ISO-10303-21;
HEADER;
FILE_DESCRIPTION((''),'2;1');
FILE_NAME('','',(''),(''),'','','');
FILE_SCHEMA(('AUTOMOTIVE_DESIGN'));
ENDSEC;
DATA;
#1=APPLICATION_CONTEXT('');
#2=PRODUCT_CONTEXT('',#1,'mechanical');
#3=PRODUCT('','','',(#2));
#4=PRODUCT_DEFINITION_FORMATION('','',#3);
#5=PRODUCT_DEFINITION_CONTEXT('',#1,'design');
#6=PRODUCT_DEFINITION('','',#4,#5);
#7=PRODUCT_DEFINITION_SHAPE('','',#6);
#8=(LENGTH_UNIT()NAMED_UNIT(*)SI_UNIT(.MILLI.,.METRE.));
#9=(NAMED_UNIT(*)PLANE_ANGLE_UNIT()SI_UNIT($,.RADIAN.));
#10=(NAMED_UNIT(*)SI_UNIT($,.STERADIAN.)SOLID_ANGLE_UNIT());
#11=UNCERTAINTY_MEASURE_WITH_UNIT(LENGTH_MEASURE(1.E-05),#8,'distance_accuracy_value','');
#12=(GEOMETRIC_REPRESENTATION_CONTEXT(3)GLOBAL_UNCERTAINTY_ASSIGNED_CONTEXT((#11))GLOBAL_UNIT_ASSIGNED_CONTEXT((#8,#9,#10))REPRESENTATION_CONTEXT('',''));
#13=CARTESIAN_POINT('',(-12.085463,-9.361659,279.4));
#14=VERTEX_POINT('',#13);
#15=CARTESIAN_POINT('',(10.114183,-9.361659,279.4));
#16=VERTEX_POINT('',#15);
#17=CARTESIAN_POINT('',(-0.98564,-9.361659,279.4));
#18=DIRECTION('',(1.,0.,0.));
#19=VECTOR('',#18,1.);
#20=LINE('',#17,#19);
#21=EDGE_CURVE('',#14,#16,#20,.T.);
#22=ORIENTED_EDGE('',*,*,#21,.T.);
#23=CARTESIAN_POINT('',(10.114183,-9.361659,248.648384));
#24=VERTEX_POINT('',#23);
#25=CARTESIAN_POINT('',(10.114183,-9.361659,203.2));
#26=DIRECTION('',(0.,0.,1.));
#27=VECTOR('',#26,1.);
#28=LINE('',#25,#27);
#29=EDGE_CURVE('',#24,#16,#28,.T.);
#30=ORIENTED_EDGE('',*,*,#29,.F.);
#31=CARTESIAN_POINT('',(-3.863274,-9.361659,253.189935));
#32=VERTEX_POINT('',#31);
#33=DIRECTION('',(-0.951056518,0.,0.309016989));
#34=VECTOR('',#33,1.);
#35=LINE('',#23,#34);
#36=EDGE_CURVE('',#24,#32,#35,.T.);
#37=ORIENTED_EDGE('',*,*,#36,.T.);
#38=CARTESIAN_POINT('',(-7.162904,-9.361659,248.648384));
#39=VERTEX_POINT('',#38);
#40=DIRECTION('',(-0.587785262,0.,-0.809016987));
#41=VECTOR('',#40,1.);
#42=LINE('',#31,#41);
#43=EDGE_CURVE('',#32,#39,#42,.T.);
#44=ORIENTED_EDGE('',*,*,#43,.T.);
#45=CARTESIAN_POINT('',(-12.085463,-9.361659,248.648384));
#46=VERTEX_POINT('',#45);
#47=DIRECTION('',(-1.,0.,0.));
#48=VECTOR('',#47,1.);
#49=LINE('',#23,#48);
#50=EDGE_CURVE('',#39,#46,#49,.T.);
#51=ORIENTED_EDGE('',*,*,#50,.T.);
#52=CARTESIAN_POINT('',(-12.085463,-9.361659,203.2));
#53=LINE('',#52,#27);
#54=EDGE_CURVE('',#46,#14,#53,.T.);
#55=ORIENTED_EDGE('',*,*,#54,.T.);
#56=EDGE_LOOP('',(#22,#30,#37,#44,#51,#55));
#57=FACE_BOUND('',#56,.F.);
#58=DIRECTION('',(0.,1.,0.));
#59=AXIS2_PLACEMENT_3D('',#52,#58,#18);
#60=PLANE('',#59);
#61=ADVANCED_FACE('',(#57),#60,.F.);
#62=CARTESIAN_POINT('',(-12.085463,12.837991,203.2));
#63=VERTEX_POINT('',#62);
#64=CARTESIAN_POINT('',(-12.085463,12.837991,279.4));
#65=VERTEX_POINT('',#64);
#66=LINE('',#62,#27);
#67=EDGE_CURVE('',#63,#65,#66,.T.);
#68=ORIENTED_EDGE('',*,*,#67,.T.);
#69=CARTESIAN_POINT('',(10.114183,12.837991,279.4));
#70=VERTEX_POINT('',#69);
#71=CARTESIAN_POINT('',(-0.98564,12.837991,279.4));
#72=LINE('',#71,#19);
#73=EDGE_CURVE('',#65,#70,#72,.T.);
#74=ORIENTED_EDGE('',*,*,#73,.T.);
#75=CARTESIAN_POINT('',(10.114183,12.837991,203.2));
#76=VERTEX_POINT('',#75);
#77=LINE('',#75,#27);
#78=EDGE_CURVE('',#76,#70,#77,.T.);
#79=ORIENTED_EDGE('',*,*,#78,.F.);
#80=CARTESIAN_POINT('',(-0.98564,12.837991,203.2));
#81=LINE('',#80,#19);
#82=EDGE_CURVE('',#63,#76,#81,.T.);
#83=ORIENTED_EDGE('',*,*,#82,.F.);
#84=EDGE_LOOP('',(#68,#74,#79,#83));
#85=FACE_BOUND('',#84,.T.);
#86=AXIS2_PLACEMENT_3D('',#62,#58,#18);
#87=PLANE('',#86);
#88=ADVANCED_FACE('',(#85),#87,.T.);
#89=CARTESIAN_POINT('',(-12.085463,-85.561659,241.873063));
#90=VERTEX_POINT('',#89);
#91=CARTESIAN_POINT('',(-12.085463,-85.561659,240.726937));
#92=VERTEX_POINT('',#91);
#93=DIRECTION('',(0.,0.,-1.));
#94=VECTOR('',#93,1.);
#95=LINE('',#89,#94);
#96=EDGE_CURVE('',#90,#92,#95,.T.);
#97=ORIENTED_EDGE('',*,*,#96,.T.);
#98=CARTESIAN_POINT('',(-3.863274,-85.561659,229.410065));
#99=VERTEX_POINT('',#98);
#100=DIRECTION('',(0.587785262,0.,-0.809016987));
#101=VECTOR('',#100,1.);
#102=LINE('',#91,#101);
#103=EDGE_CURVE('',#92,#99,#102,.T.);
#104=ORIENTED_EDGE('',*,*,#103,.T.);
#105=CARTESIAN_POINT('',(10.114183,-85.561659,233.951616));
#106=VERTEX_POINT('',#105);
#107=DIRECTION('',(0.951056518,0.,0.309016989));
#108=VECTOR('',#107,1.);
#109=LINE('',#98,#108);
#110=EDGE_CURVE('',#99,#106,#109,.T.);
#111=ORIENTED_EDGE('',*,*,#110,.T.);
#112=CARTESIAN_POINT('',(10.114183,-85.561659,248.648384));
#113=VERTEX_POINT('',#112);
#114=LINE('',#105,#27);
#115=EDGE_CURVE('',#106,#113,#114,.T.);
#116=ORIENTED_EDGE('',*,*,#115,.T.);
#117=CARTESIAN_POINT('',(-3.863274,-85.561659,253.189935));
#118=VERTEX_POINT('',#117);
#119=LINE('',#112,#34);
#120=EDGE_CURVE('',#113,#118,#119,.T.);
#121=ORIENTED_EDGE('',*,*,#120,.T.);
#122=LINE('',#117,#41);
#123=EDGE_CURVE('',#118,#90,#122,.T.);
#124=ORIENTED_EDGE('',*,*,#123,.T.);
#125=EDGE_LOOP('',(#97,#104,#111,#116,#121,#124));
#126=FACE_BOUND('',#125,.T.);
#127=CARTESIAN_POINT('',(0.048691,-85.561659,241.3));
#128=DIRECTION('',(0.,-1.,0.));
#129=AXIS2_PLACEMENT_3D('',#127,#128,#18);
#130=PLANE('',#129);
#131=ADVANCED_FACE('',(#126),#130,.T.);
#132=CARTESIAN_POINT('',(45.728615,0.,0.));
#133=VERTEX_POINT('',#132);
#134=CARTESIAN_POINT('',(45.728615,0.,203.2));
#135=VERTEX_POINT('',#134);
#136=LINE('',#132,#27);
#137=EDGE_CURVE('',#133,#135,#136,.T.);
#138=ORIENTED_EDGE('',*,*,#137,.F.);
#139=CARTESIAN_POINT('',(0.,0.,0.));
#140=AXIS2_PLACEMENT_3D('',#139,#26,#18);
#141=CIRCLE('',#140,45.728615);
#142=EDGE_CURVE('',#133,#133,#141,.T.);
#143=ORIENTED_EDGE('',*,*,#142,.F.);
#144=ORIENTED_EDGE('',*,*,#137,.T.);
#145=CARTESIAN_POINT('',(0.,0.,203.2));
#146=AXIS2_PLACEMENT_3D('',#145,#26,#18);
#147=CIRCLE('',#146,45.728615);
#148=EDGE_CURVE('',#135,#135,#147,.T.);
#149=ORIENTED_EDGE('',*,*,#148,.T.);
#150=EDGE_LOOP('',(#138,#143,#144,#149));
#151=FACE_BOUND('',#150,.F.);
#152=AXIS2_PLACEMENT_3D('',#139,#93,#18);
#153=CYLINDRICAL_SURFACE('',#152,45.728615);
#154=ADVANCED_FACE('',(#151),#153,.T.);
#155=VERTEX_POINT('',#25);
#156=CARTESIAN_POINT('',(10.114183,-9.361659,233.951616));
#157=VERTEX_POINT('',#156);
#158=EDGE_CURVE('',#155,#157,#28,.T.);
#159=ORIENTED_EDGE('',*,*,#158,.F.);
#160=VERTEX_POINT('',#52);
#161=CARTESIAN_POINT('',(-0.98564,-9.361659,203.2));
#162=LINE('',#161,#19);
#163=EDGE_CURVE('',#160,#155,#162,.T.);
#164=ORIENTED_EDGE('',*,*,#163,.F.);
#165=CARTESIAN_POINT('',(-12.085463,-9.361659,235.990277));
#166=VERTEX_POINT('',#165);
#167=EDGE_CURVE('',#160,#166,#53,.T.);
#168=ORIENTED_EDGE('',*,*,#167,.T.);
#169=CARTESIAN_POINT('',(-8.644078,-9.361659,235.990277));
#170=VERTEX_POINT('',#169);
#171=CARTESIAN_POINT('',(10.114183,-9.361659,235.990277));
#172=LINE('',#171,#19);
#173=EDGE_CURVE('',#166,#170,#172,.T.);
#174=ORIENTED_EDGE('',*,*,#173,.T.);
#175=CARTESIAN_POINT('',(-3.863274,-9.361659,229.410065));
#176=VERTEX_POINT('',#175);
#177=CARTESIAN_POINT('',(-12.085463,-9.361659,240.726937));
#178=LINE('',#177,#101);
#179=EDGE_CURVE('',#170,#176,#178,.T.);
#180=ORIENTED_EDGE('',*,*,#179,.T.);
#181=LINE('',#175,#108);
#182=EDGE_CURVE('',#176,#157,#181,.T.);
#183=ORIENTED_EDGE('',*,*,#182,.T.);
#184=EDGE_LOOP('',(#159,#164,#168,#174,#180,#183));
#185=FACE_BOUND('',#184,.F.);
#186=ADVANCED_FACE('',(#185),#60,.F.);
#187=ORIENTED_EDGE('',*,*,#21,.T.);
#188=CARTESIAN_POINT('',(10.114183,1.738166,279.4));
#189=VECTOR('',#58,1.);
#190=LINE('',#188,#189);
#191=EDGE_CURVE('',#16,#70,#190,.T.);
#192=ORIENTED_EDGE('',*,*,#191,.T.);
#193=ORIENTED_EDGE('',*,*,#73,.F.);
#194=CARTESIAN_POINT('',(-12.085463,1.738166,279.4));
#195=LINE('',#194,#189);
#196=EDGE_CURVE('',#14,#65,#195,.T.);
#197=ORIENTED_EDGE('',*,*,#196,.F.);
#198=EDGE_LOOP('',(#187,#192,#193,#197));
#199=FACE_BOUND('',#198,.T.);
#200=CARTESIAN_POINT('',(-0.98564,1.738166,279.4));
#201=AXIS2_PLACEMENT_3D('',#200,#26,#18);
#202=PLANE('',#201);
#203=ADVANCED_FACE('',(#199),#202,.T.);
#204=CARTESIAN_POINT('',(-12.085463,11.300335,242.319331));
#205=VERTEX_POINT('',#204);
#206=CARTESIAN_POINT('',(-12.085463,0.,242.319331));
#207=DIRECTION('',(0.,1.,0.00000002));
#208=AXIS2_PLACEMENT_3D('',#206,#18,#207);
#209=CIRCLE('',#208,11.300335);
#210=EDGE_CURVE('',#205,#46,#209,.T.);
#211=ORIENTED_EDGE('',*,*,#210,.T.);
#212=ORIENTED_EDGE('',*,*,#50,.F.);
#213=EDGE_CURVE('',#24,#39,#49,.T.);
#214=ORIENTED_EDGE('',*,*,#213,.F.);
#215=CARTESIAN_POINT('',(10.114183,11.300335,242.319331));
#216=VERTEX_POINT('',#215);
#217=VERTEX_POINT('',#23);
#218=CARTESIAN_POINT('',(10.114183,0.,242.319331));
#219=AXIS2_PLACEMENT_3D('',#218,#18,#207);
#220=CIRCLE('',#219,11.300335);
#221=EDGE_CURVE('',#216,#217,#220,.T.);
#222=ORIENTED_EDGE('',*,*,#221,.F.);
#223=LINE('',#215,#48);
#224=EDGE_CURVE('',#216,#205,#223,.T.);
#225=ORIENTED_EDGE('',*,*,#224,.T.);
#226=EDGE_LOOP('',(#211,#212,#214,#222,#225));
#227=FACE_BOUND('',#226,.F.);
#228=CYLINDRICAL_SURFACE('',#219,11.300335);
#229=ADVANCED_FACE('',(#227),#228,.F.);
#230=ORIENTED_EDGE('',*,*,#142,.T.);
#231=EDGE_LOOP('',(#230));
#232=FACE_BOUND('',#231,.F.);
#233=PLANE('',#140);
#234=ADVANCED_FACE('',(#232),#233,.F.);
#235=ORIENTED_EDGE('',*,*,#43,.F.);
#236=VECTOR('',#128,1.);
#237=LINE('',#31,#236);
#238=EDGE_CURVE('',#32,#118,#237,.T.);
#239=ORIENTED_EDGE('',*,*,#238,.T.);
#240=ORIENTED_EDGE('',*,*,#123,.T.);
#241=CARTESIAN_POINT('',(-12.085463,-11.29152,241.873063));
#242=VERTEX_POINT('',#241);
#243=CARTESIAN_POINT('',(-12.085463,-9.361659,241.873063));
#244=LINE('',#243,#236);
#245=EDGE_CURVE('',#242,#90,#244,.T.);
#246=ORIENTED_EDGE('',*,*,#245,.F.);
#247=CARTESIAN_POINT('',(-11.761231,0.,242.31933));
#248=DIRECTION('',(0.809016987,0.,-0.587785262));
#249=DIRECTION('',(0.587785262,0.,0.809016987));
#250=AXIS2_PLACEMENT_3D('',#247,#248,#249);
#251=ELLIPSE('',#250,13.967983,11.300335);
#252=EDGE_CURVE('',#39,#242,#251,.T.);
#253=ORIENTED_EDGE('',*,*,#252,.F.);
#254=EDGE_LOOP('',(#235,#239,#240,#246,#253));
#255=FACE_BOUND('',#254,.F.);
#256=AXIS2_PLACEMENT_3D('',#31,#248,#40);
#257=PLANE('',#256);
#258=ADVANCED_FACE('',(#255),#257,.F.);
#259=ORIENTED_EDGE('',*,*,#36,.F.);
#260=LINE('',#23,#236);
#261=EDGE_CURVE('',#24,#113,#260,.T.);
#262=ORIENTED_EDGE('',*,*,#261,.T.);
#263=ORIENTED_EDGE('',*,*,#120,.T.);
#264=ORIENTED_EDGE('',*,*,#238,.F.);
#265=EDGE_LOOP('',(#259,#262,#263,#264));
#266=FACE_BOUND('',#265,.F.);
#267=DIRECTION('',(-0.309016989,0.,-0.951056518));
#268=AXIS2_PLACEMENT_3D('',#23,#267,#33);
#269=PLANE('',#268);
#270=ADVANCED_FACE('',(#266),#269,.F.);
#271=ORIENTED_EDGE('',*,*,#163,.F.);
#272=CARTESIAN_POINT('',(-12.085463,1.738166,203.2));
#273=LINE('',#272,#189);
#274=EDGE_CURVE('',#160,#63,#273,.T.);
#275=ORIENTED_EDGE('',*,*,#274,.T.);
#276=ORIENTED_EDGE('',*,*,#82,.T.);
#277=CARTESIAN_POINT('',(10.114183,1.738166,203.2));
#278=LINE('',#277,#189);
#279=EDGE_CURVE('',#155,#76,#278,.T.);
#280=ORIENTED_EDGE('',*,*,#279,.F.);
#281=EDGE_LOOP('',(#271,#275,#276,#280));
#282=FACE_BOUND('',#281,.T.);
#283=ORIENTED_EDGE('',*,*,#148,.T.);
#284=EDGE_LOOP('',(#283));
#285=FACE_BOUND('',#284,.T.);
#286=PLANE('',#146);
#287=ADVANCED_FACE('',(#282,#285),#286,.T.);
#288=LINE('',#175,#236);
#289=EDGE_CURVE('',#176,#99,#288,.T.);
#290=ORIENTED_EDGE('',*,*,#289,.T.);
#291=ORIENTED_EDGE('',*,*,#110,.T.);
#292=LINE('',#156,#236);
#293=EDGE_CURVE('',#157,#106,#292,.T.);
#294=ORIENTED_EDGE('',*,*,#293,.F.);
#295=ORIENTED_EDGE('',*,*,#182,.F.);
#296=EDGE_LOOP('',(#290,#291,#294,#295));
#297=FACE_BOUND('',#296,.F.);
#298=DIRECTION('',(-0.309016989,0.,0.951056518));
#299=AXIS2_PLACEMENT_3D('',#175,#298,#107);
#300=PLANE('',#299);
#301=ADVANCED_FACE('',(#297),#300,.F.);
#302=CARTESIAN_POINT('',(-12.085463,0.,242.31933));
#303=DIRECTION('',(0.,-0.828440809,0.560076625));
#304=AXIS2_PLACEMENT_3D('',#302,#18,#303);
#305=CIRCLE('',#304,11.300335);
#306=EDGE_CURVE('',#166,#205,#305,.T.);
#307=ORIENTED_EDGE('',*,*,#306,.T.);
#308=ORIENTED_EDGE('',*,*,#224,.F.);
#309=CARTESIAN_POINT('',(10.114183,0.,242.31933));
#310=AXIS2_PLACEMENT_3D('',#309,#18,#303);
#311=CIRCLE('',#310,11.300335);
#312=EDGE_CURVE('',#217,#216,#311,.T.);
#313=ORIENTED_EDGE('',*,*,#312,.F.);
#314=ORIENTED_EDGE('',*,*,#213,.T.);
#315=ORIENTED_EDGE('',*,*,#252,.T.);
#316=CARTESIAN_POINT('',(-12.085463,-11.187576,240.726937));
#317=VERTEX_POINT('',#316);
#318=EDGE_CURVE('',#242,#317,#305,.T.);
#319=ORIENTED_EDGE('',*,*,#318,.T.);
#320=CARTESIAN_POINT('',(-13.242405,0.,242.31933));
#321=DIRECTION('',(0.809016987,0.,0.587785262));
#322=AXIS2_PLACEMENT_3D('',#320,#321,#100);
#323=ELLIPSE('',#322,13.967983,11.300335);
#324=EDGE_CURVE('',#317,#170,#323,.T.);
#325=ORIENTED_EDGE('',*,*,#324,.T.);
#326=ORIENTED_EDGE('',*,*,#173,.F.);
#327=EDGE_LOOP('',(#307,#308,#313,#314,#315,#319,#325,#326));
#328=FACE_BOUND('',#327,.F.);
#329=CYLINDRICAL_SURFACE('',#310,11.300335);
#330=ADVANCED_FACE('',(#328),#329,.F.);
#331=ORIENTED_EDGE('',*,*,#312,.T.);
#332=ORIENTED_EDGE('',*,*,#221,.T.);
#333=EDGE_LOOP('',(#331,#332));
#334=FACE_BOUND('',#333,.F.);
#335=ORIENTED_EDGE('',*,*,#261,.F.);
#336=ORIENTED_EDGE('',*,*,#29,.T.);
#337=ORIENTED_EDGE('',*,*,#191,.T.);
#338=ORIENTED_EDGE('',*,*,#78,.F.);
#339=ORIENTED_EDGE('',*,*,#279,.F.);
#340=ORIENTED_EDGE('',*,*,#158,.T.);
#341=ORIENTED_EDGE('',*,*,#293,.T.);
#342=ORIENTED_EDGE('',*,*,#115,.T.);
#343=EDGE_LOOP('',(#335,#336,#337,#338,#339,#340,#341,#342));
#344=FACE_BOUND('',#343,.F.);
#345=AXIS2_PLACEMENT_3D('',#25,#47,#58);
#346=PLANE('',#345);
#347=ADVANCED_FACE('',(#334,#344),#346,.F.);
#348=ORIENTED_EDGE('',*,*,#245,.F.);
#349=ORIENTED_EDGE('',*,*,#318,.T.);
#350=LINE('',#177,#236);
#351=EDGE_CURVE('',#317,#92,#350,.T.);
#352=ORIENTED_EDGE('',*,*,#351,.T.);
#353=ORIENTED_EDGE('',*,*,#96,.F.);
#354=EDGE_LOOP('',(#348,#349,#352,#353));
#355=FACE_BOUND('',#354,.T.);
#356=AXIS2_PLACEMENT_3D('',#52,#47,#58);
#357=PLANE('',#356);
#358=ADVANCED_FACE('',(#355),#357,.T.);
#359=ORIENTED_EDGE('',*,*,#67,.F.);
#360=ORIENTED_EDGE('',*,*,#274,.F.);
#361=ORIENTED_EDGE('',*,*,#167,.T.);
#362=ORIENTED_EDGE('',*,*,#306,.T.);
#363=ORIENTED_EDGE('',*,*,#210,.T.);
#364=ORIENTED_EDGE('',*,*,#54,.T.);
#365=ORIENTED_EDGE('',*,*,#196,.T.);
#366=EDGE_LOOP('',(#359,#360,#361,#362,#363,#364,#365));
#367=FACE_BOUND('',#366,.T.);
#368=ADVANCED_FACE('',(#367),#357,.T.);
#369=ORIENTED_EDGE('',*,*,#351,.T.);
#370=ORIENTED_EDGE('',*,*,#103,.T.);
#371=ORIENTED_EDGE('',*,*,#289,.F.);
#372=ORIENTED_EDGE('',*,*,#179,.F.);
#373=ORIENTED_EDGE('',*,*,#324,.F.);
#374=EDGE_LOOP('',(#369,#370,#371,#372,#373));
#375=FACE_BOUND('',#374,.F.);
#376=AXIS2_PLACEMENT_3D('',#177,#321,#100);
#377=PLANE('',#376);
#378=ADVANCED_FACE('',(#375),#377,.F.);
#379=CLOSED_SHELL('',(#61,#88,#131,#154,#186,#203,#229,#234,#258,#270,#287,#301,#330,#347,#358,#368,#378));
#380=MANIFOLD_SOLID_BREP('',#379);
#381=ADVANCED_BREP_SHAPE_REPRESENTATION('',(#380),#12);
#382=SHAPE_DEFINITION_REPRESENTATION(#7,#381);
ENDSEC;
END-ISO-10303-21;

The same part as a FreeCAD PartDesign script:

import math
import FreeCAD as App
import Part
import Sketcher
from FreeCAD import Vector
Q = App.Units.Quantity

doc = App.newDocument("Part")
params = doc.addObject("Spreadsheet::Sheet", "Params")
for row, (alias, value) in enumerate([
    ("pad1_length", "8 in"),
    ("pad2_length", "3 in"),
    ("pad3_length", "3 in"),
    ("pocket1_length", "1 in"),
], start=1):
    params.set(f"A{row}", alias)
    params.set(f"B{row}", "=" + value)
    params.setAlias(f"B{row}", alias)

body = doc.addObject("PartDesign::Body", "Body")

# Sketch on XY plane
sketch1 = body.newObject("Sketcher::SketchObject", "Sketch")
sketch1.AttachmentSupport = (doc.getObject("XY_Plane"), [""])
sketch1.MapMode = "FlatFace"
sketch1.addGeometry(Part.Circle(Vector(0, 0, 0), Vector(0, 0, 1), 46), False)
sketch1.addConstraint(Sketcher.Constraint("Coincident", 0, 3, -1, 1))
sketch1.addConstraint(Sketcher.Constraint("Diameter", 0, Q("91.45723 mm")))
pad1 = body.newObject("PartDesign::Pad", "Pad")
pad1.Profile = sketch1
pad1.setExpression("Length", "Params.pad1_length")

# Sketch on XY plane
sketch2 = body.newObject("Sketcher::SketchObject", "Sketch001")
sketch2.AttachmentSupport = (doc.getObject("XY_Plane"), [""])
sketch2.MapMode = "FlatFace"
sketch2.AttachmentOffset = App.Placement(Vector(0, 0, 8 * 25.4), App.Rotation())
sketch2.addGeometry(Part.LineSegment(Vector(-12, 13, 0), Vector(-12, -9, 0)), False)
sketch2.addGeometry(Part.LineSegment(Vector(-12, -9, 0), Vector(10, -9, 0)), False)
sketch2.addGeometry(Part.LineSegment(Vector(10, -9, 0), Vector(10, 13, 0)), False)
sketch2.addGeometry(Part.LineSegment(Vector(10, 13, 0), Vector(-12, 13, 0)), False)
sketch2.addConstraint(Sketcher.Constraint("Coincident", 0, 2, 1, 1))
sketch2.addConstraint(Sketcher.Constraint("Coincident", 1, 2, 2, 1))
sketch2.addConstraint(Sketcher.Constraint("Coincident", 2, 2, 3, 1))
sketch2.addConstraint(Sketcher.Constraint("Coincident", 3, 2, 0, 1))
sketch2.addConstraint(Sketcher.Constraint("Vertical", 0))
sketch2.addConstraint(Sketcher.Constraint("Horizontal", 1))
sketch2.addConstraint(Sketcher.Constraint("Vertical", 2))
sketch2.addConstraint(Sketcher.Constraint("Horizontal", 3))
sketch2.addConstraint(Sketcher.Constraint("DistanceY", 0, 2, 0, 1, Q("22.19965 mm")))
sketch2.addConstraint(Sketcher.Constraint("DistanceX", 1, 1, 1, 2, Q("22.199646 mm")))
sketch2.addConstraint(Sketcher.Constraint("DistanceY", 0, 2, -1, 1, Q("9.361659 mm")))
sketch2.addConstraint(Sketcher.Constraint("DistanceX", 0, 2, -1, 1, Q("12.085463 mm")))
pad2 = body.newObject("PartDesign::Pad", "Pad001")
pad2.Profile = sketch2
pad2.setExpression("Length", "Params.pad2_length")

# Sketch on XZ plane
sketch3 = body.newObject("Sketcher::SketchObject", "Sketch002")
sketch3.AttachmentSupport = (doc.getObject("XZ_Plane"), [""])
sketch3.MapMode = "FlatFace"
sketch3.AttachmentOffset = App.Placement(Vector(0, 0, 9.361659), App.Rotation())
sketch3.addGeometry(Part.LineSegment(Vector(10.1, 234, 0), Vector(10.1, 248.6, 0)), False)
sketch3.addGeometry(Part.LineSegment(Vector(10.1, 248.6, 0), Vector(-3.9, 253.2, 0)), False)
sketch3.addGeometry(Part.LineSegment(Vector(-3.9, 253.2, 0), Vector(-12.1, 241.9, 0)), False)
sketch3.addGeometry(Part.LineSegment(Vector(-12.1, 241.9, 0), Vector(-12.1, 240.7, 0)), False)
sketch3.addGeometry(Part.LineSegment(Vector(-12.1, 240.7, 0), Vector(-3.9, 229.4, 0)), False)
sketch3.addGeometry(Part.LineSegment(Vector(-3.9, 229.4, 0), Vector(10.1, 234, 0)), False)
sketch3.addConstraint(Sketcher.Constraint("Coincident", 0, 2, 1, 1))
sketch3.addConstraint(Sketcher.Constraint("Coincident", 1, 2, 2, 1))
sketch3.addConstraint(Sketcher.Constraint("Coincident", 2, 2, 3, 1))
sketch3.addConstraint(Sketcher.Constraint("Coincident", 3, 2, 4, 1))
sketch3.addConstraint(Sketcher.Constraint("Coincident", 4, 2, 5, 1))
sketch3.addConstraint(Sketcher.Constraint("Coincident", 5, 2, 0, 1))
sketch3.addConstraint(Sketcher.Constraint("Vertical", 0))
sketch3.addConstraint(Sketcher.Constraint("Vertical", 3))
sketch3.addConstraint(Sketcher.Constraint("Vertical", 1, 2, 4, 2))
sketch3.addConstraint(Sketcher.Constraint("Equal", 2, 4))
sketch3.addConstraint(Sketcher.Constraint("Equal", 1, 5))
sketch3.addConstraint(Sketcher.Constraint("Angle", 1, Q("162 deg")))
sketch3.addConstraint(Sketcher.Constraint("Angle", 2, Q("-126.000001 deg")))
sketch3.addConstraint(Sketcher.Constraint("Distance", 1, Q("14.696768 mm")))
sketch3.addConstraint(Sketcher.Constraint("DistanceY", 0, 1, 0, 2, Q("14.696768 mm")))
sketch3.addConstraint(Sketcher.Constraint("DistanceY", 3, 2, 3, 1, Q("1.146126 mm")))
sketch3.addConstraint(Sketcher.Constraint("DistanceX", -1, 1, 0, 2, Q("10.114183 mm")))
sketch3.addConstraint(Sketcher.Constraint("DistanceY", -1, 1, 0, 2, Q("248.648384 mm")))
pad3 = body.newObject("PartDesign::Pad", "Pad002")
pad3.Profile = sketch3
pad3.setExpression("Length", "Params.pad3_length")

# Sketch on YZ plane
sketch4 = body.newObject("Sketcher::SketchObject", "Sketch003")
sketch4.AttachmentSupport = (doc.getObject("YZ_Plane"), [""])
sketch4.MapMode = "FlatFace"
sketch4.AttachmentOffset = App.Placement(Vector(0, 0, 10.114183), App.Rotation())
sketch4.addGeometry(Part.ArcOfCircle(Part.Circle(Vector(0, 242, 0), Vector(0, 0, 1), 11), math.radians(146), math.radians(360)), False)
sketch4.addGeometry(Part.ArcOfCircle(Part.Circle(Vector(0, 242, 0), Vector(0, 0, 1), 11), math.radians(0), math.radians(146)), False)
sketch4.addConstraint(Sketcher.Constraint("Tangent", 0, 1, 1, 2))
sketch4.addConstraint(Sketcher.Constraint("Coincident", 1, 1, 0, 2))
sketch4.addConstraint(Sketcher.Constraint("PointOnObject", 0, 3, -2))
sketch4.addConstraint(Sketcher.Constraint("Horizontal", 0, 3, 1, 1))
sketch4.addConstraint(Sketcher.Constraint("Radius", 0, Q("11.300335 mm")))
sketch4.addConstraint(Sketcher.Constraint("DistanceY", -1, 1, 0, 3, Q("242.31933 mm")))
sketch4.addConstraint(Sketcher.Constraint("DistanceX", 0, 1, -1, 1, Q("9.361659 mm")))
pocket1 = body.newObject("PartDesign::Pocket", "Pocket")
pocket1.Profile = sketch4
pocket1.setExpression("Length", "Params.pocket1_length")

doc.recompute()
